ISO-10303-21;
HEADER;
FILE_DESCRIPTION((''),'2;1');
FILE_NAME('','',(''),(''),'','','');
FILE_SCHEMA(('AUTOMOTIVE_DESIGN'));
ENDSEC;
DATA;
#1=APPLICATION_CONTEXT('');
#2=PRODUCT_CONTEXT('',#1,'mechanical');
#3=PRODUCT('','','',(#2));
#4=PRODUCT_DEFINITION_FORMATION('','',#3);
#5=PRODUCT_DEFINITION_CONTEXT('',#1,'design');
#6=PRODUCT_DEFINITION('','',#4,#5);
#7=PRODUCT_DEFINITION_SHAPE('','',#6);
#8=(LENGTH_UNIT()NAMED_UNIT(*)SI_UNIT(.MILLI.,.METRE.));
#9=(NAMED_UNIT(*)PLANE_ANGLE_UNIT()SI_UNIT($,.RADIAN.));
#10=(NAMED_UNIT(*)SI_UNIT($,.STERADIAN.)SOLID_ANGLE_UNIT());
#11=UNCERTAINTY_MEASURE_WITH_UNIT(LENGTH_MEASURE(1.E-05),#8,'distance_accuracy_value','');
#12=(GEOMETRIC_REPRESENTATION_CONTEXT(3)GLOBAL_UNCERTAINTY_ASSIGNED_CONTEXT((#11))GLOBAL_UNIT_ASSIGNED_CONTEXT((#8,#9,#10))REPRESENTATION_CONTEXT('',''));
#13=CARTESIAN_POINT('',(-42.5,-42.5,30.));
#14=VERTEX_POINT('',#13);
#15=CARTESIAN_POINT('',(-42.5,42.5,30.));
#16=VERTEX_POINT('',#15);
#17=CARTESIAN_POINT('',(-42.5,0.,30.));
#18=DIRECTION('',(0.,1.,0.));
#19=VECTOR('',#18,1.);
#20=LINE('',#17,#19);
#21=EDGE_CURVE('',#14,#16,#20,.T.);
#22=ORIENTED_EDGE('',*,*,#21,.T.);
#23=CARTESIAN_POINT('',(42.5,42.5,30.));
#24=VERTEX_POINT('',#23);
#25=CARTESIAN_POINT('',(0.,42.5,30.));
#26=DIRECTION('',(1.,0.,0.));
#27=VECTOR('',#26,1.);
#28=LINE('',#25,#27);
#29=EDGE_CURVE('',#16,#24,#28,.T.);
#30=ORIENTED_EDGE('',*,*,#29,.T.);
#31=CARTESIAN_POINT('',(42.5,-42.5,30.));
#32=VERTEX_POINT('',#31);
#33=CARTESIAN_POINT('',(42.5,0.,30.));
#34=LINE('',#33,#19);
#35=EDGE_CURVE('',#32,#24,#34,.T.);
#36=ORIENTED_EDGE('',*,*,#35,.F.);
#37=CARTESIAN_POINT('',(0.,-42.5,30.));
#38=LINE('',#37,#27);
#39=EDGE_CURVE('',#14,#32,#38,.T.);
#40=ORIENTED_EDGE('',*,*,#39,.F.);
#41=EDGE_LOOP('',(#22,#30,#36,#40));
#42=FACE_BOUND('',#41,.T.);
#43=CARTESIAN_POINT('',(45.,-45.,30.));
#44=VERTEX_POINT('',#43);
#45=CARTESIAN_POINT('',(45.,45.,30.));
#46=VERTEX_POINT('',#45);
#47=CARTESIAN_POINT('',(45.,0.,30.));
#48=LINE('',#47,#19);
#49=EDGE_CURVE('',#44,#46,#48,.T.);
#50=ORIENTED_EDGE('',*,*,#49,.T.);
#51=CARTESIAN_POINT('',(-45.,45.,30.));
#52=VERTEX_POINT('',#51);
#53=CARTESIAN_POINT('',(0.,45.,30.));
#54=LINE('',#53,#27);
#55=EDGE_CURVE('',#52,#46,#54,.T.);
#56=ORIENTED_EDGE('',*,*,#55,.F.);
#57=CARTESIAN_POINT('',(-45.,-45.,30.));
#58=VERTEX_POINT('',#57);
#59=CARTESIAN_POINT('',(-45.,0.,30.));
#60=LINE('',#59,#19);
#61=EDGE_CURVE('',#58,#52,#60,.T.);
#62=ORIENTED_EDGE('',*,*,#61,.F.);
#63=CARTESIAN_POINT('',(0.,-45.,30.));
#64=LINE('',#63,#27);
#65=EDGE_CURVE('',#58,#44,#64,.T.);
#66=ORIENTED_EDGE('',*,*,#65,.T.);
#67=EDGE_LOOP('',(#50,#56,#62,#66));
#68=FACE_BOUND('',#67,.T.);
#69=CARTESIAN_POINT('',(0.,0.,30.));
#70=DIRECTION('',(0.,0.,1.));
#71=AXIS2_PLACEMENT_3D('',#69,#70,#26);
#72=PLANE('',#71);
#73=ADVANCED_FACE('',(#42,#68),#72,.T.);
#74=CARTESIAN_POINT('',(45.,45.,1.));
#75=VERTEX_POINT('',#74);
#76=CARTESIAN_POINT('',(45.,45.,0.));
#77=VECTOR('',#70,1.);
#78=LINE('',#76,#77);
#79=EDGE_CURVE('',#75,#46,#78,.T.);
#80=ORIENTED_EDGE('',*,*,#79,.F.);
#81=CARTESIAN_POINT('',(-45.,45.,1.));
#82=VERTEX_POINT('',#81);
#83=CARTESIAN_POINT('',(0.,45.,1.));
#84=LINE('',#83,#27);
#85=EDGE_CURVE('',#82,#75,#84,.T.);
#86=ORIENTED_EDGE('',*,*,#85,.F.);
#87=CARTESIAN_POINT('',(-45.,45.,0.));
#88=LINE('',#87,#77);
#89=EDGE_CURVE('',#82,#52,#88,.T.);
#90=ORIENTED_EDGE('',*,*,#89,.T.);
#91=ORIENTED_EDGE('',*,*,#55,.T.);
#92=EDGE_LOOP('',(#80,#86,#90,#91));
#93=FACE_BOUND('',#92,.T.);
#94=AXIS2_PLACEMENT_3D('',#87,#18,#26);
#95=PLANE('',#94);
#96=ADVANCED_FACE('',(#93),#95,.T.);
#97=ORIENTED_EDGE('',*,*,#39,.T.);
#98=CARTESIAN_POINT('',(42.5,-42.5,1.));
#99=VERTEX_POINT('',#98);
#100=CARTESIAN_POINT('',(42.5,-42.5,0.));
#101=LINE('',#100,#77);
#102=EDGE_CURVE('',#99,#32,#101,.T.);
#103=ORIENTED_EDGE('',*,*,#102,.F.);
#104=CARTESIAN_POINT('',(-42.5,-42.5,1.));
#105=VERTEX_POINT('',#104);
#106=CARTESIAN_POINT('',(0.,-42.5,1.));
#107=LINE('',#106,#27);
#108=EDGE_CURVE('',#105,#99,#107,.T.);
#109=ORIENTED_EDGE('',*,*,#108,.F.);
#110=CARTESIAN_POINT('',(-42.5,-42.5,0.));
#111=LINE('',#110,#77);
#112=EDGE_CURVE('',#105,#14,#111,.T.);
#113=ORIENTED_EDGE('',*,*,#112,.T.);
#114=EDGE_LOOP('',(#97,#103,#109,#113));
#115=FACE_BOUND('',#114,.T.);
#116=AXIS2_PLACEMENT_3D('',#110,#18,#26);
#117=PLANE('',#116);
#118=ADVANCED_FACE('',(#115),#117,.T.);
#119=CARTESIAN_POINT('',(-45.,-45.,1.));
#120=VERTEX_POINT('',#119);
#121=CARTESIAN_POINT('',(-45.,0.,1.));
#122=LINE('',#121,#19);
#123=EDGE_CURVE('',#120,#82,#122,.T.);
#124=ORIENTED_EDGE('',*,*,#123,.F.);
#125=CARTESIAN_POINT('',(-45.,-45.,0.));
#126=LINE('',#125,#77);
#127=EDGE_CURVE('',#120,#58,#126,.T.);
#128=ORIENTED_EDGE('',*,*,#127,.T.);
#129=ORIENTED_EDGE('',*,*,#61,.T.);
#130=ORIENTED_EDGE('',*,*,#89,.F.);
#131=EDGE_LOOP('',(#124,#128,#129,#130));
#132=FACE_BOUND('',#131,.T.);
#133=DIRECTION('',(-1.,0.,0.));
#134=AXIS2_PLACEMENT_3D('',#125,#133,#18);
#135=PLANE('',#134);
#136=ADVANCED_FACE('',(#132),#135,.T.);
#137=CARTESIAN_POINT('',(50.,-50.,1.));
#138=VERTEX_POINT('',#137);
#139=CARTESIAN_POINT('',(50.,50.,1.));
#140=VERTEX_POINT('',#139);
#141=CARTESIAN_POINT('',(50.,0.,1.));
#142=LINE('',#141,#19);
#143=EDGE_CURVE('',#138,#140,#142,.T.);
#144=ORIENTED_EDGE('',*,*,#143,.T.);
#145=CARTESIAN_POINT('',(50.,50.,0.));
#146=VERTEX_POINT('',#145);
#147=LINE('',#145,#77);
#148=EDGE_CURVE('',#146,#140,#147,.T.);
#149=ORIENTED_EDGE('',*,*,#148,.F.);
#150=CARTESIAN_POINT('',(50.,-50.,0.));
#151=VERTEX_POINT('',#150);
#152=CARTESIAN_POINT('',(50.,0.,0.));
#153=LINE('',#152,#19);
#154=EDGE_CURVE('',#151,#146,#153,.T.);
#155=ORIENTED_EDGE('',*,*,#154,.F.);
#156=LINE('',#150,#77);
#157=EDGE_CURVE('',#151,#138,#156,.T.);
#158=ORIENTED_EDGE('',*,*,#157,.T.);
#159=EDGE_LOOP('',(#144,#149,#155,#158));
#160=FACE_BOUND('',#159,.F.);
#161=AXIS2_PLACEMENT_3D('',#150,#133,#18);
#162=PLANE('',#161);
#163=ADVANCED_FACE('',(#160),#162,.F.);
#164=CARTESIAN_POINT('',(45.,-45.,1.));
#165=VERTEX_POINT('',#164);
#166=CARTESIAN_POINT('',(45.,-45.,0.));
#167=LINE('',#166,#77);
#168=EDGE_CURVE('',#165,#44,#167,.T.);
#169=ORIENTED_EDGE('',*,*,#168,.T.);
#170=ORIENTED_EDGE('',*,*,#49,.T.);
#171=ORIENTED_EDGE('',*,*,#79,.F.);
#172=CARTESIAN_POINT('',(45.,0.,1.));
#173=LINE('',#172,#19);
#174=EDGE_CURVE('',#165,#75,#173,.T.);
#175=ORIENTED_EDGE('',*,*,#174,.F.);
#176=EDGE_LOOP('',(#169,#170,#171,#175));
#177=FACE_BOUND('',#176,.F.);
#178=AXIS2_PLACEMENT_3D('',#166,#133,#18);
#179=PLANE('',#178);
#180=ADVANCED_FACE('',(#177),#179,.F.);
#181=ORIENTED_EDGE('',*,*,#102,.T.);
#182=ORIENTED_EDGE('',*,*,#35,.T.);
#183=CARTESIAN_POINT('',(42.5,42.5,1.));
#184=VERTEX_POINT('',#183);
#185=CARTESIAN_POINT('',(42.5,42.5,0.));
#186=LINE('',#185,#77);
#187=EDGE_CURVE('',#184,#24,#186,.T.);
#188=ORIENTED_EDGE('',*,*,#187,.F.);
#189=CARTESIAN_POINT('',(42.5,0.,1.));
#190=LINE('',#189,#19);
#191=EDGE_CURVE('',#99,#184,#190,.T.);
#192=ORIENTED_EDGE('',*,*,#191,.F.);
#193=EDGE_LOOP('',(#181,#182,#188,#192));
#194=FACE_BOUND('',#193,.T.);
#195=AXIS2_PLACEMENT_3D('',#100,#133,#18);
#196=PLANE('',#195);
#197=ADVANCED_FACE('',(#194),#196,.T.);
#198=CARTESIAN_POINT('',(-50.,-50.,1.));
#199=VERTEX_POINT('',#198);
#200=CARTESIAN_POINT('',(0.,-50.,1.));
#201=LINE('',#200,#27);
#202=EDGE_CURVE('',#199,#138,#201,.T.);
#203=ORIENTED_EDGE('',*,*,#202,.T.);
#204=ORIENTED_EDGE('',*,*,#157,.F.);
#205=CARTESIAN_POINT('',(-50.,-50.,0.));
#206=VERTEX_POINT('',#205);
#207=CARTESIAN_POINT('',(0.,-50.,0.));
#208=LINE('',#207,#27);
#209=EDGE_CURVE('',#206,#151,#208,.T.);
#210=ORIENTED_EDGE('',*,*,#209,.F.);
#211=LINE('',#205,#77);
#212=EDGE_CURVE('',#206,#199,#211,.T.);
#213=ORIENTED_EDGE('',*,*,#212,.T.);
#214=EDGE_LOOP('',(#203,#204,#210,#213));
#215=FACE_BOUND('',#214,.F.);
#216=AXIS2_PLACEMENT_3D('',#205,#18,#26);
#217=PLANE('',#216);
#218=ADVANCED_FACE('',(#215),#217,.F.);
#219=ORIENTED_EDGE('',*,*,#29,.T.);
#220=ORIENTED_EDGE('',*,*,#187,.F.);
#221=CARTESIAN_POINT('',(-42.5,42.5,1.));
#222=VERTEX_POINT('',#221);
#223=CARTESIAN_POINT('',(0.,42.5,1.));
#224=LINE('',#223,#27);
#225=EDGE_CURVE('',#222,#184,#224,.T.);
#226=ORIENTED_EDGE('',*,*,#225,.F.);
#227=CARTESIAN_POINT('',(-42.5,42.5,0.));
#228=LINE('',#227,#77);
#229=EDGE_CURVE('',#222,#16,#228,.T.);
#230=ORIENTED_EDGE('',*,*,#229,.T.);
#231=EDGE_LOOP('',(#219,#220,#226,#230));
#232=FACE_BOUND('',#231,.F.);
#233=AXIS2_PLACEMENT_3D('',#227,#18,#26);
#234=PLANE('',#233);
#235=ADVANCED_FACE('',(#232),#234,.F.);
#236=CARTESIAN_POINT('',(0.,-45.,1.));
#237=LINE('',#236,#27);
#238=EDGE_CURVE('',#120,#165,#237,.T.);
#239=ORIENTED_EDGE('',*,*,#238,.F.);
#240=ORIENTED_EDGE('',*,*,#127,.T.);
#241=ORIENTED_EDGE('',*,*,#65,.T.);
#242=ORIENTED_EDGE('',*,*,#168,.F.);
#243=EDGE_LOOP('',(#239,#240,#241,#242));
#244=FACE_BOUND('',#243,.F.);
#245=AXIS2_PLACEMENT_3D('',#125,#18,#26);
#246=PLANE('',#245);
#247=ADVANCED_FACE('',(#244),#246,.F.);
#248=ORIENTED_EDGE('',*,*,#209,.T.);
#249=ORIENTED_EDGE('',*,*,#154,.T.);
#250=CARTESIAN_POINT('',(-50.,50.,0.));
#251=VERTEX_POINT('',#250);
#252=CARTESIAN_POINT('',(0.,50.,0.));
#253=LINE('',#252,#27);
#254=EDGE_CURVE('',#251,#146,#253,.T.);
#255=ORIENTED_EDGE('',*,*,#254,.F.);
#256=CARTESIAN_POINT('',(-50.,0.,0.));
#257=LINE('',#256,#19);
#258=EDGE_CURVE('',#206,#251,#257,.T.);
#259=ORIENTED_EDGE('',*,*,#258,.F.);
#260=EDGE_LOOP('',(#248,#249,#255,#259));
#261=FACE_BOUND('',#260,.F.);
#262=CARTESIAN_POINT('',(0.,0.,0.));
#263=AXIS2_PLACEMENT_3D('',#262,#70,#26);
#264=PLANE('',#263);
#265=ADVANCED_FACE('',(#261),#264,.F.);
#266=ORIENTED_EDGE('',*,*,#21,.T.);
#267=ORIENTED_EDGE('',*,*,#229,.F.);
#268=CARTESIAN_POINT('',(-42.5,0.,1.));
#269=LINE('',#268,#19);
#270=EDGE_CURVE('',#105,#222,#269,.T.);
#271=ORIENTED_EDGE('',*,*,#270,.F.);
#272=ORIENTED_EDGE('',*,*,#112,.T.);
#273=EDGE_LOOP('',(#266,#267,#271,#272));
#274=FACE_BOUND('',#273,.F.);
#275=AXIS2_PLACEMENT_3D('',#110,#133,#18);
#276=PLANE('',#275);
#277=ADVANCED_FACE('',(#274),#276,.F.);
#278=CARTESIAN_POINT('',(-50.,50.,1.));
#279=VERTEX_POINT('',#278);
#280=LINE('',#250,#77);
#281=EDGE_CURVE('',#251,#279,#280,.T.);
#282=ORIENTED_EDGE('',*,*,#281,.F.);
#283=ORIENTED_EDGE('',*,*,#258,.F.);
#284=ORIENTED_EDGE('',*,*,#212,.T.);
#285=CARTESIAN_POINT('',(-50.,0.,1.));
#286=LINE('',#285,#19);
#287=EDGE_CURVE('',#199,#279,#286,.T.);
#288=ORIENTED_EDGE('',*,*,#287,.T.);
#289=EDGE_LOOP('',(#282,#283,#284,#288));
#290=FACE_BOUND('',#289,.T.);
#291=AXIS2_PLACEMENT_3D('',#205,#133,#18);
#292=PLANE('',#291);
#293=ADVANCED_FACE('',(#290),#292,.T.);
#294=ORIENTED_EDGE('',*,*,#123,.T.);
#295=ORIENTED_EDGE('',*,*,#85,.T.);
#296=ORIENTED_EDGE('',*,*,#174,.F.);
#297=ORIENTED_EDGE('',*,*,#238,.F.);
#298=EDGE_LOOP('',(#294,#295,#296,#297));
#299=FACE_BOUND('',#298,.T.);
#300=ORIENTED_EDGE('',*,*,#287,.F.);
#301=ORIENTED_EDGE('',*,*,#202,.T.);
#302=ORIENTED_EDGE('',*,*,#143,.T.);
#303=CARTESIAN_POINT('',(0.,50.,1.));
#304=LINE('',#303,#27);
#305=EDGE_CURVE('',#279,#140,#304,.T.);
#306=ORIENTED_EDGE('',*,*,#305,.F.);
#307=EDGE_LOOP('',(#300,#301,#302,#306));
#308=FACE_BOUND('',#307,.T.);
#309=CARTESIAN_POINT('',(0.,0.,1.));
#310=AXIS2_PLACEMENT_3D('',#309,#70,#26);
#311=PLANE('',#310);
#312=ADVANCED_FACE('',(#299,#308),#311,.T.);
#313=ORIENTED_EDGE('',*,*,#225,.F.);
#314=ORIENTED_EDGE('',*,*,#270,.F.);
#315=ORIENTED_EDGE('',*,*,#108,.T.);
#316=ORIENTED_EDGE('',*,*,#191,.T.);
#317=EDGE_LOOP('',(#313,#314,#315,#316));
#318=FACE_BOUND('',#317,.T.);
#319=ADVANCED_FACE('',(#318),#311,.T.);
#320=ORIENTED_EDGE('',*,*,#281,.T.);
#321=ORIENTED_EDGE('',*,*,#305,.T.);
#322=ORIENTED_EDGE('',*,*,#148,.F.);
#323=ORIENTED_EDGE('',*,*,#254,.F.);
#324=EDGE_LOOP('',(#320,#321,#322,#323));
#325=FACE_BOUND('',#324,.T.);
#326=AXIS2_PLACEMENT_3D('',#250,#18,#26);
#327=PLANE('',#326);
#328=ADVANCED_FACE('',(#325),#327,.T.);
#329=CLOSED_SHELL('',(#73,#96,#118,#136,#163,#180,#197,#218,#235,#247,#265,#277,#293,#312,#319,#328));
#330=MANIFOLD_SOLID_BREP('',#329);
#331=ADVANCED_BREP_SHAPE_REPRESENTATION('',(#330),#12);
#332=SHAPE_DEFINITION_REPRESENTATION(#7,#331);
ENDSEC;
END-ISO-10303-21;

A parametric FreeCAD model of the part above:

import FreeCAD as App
import Part
import Sketcher
Q = App.Units.Quantity


def add_polygon(sketch, points):
    """Adds a closed chain of lines whose ends are joined by coincident constraints."""
    first, n = sketch.GeometryCount, len(points)
    for a, b in zip(points, points[1:] + points[:1]):
        sketch.addGeometry(Part.LineSegment(App.Vector(*a, 0), App.Vector(*b, 0)), False)
    for i in range(n):
        sketch.addConstraint(Sketcher.Constraint("Coincident", first + i, 2, first + (i + 1) % n, 1))

doc = App.newDocument("Part")
body = doc.addObject("PartDesign::Body", "Body")

# Sketch on XY plane
sketch1 = body.newObject("Sketcher::SketchObject", "Sketch")
sketch1.AttachmentSupport = (doc.getObject("XY_Plane"), [""])
sketch1.MapMode = "FlatFace"
add_polygon(sketch1, [(-45, 45), (-45, -45), (45, -45), (45, 45)])  # lines 0-3
add_polygon(sketch1, [(42.5, -42.5), (-42.5, -42.5), (-42.5, 42.5), (42.5, 42.5)])  # lines 4-7
sketch1.addConstraint(Sketcher.Constraint("Vertical", 0))
sketch1.addConstraint(Sketcher.Constraint("Horizontal", 1))
sketch1.addConstraint(Sketcher.Constraint("Vertical", 2))
sketch1.addConstraint(Sketcher.Constraint("Horizontal", 3))
sketch1.addConstraint(Sketcher.Constraint("Horizontal", 4))
sketch1.addConstraint(Sketcher.Constraint("Vertical", 5))
sketch1.addConstraint(Sketcher.Constraint("Horizontal", 6))
sketch1.addConstraint(Sketcher.Constraint("Vertical", 7))
sketch1.addConstraint(Sketcher.Constraint("Symmetric", 0, 2, 2, 2, -1, 1))
sketch1.addConstraint(Sketcher.Constraint("Symmetric", 4, 2, 6, 2, -1, 1))
sketch1.addConstraint(Sketcher.Constraint("Equal", 3, 0))
sketch1.addConstraint(Sketcher.Constraint("Equal", 6, 5))
sketch1.addConstraint(Sketcher.Constraint("DistanceX", 1, 1, 1, 2, Q("90 mm")))
sketch1.addConstraint(Sketcher.Constraint("DistanceX", 4, 2, 4, 1, Q("85 mm")))
pad1 = body.newObject("PartDesign::Pad", "Pad")
pad1.Profile = sketch1
pad1.Length = 30

# Sketch on XY plane
sketch2 = body.newObject("Sketcher::SketchObject", "Sketch001")
sketch2.AttachmentSupport = (doc.getObject("XY_Plane"), [""])
sketch2.MapMode = "FlatFace"
add_polygon(sketch2, [(-50, 50), (-50, -50), (50, -50), (50, 50)])  # lines 0-3
add_polygon(sketch2, [(45, -45), (-45, -45), (-45, 45), (45, 45)])  # lines 4-7
add_polygon(sketch2, [(-42.5, 42.5), (-42.5, -42.5), (42.5, -42.5), (42.5, 42.5)])  # lines 8-11
sketch2.addConstraint(Sketcher.Constraint("Vertical", 0))
sketch2.addConstraint(Sketcher.Constraint("Horizontal", 1))
sketch2.addConstraint(Sketcher.Constraint("Vertical", 2))
sketch2.addConstraint(Sketcher.Constraint("Horizontal", 3))
sketch2.addConstraint(Sketcher.Constraint("Horizontal", 4))
sketch2.addConstraint(Sketcher.Constraint("Vertical", 5))
sketch2.addConstraint(Sketcher.Constraint("Horizontal", 6))
sketch2.addConstraint(Sketcher.Constraint("Vertical", 7))
sketch2.addConstraint(Sketcher.Constraint("Vertical", 8))
sketch2.addConstraint(Sketcher.Constraint("Horizontal", 9))
sketch2.addConstraint(Sketcher.Constraint("Vertical", 10))
sketch2.addConstraint(Sketcher.Constraint("Horizontal", 11))
sketch2.addConstraint(Sketcher.Constraint("Symmetric", 0, 2, 2, 2, -1, 1))
sketch2.addConstraint(Sketcher.Constraint("Symmetric", 4, 2, 6, 2, -1, 1))
sketch2.addConstraint(Sketcher.Constraint("Symmetric", 8, 2, 10, 2, -1, 1))
sketch2.addConstraint(Sketcher.Constraint("Equal", 3, 0))
sketch2.addConstraint(Sketcher.Constraint("Equal", 6, 5))
sketch2.addConstraint(Sketcher.Constraint("Equal", 11, 8))
sketch2.addConstraint(Sketcher.Constraint("DistanceX", 1, 1, 1, 2, Q("100 mm")))
sketch2.addConstraint(Sketcher.Constraint("DistanceX", 4, 2, 4, 1, Q("90 mm")))
sketch2.addConstraint(Sketcher.Constraint("DistanceX", 9, 1, 9, 2, Q("85 mm")))
pad2 = body.newObject("PartDesign::Pad", "Pad001")
pad2.Profile = sketch2
pad2.Length = 1

doc.recompute()
